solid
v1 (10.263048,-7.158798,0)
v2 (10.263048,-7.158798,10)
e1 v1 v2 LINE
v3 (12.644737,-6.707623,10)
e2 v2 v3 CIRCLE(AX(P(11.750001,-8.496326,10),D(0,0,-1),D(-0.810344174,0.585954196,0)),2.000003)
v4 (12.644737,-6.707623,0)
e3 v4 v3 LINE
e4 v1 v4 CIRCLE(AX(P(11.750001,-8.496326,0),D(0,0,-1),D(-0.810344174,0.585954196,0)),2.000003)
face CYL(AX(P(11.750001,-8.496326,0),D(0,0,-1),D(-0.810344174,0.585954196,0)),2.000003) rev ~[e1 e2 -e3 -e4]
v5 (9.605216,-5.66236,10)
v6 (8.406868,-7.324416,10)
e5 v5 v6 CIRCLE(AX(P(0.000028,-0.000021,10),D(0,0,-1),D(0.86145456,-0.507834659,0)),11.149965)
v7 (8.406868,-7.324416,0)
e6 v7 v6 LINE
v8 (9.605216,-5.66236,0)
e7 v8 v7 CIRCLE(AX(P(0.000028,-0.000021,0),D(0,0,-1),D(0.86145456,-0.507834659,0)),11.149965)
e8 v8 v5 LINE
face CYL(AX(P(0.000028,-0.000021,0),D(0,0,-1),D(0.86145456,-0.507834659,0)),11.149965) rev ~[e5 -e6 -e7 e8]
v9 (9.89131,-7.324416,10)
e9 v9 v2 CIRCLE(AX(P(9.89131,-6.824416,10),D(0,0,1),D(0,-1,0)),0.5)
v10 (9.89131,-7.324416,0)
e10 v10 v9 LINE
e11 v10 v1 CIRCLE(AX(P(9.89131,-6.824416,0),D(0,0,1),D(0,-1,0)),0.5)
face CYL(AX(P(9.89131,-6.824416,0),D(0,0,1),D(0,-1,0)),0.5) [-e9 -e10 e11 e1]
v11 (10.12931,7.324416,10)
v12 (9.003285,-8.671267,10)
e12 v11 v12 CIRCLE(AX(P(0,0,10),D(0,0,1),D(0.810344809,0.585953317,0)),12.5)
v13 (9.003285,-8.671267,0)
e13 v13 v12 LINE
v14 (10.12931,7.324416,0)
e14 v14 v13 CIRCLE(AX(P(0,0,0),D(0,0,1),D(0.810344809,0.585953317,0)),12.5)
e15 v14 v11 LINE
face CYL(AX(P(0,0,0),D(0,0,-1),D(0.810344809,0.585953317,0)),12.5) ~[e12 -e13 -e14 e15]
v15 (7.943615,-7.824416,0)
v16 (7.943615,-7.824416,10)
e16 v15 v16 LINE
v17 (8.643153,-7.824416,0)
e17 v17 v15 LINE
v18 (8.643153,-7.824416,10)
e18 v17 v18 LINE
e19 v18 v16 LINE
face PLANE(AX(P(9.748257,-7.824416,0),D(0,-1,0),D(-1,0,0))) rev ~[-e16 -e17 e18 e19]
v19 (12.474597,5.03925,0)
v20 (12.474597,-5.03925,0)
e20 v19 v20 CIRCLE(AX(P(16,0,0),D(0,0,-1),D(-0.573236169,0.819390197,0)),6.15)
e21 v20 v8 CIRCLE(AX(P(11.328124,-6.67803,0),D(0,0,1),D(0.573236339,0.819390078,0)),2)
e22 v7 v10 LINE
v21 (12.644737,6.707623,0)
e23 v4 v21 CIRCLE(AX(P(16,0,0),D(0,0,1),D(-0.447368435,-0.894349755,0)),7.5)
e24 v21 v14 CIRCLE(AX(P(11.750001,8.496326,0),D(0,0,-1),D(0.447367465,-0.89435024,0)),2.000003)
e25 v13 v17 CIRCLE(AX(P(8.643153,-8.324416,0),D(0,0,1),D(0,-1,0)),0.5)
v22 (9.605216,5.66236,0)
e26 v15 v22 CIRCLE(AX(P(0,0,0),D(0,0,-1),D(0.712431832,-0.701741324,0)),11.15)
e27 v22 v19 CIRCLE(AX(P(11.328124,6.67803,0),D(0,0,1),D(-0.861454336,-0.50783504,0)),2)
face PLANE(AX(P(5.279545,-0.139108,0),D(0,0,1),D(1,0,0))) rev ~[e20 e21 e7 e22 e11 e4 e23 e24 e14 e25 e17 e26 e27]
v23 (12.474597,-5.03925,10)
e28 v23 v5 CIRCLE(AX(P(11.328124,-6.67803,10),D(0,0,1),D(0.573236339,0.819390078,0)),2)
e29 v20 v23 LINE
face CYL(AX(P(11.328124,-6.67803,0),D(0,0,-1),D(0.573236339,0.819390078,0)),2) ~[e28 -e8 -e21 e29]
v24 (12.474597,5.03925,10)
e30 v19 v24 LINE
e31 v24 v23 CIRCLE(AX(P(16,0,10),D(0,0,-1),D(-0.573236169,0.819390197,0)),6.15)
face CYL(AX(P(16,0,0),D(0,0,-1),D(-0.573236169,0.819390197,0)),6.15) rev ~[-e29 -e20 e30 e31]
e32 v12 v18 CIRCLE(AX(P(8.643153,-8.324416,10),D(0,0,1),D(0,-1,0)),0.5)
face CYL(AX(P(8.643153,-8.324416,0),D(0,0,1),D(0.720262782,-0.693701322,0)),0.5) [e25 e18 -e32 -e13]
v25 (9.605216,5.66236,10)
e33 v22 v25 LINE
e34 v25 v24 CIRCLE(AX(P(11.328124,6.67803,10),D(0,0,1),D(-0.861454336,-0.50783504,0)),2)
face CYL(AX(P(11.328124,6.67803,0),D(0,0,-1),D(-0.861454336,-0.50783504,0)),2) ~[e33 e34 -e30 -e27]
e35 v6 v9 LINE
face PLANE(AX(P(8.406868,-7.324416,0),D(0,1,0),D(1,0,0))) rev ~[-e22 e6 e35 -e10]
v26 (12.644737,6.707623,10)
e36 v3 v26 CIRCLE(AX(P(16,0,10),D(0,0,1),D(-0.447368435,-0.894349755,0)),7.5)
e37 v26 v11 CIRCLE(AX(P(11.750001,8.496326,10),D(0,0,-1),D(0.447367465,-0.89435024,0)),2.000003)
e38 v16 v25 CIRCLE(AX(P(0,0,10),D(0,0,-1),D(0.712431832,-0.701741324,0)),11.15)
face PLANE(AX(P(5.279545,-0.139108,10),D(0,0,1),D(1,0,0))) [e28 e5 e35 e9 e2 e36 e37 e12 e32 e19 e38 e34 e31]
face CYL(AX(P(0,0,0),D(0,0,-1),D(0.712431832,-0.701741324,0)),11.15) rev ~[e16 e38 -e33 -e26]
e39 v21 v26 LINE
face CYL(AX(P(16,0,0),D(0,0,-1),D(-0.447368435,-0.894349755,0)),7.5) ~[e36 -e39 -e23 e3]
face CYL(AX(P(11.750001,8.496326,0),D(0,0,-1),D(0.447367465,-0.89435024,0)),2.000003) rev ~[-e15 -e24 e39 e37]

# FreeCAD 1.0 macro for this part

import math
import FreeCAD as App
import Part
import Sketcher

V = App.Vector


def edges_at(feature, points):
    """Names of the edges that pass closest to the given points."""
    edges = feature.Shape.Edges
    near = lambda p: min(range(len(edges)), key=lambda i: edges[i].distToShape(Part.Vertex(*p))[0])
    return sorted({f"Edge{near(p) + 1}" for p in points})

doc = App.newDocument("Part")
params = doc.addObject("Spreadsheet::Sheet", "Params")
for row, (alias, value) in enumerate([
    ("sketch1_radius", "2 mm"),
    ("sketch1_radius2", "12.5 mm"),
    ("sketch1_radius3", "7.5 mm"),
    ("sketch1_radius4", "11.15 mm"),
    ("sketch1_radius5", "6.15 mm"),
    ("pad1_length", "10 mm"),
    ("fillet_radius", "0.5 mm"),
], start=1):
    params.set(f"A{row}", alias)
    params.set(f"B{row}", "=" + value)
    params.setAlias(f"B{row}", alias)

body = doc.addObject("PartDesign::Body", "Body")

# Sketch on XY plane
sketch1 = body.newObject("Sketcher::SketchObject", "Sketch")
sketch1.AttachmentSupport = (doc.getObject("XY_Plane"), [""])
sketch1.MapMode = "FlatFace"
sketch1.addGeometry([
    Part.ArcOfCircle(Part.Circle(V(11.8, 8.5, 0), V(0, 0, 1), 2), math.radians(-144), math.radians(-63)),  # 0
    Part.ArcOfCircle(Part.Circle(V(0, 0, 0), V(0, 0, 1), 12.5), math.radians(36), math.radians(321)),  # 1
    Part.LineSegment(V(9.7, -7.8, 0), V(7.9, -7.8, 0)),  # 2
    Part.ArcOfCircle(Part.Circle(V(0, 0, 0), V(0, 0, 1), 11.1), math.radians(31), math.radians(315)),  # 3
    Part.ArcOfCircle(Part.Circle(V(11.3, 6.7, 0), V(0, 0, 1), 2), math.radians(-149), math.radians(-55)),  # 4
    Part.ArcOfCircle(Part.Circle(V(16, 0, 0), V(0, 0, 1), 6.2), math.radians(-125), math.radians(125)),  # 5
    Part.ArcOfCircle(Part.Circle(V(11.3, -6.7, 0), V(0, 0, 1), 2), math.radians(55), math.radians(149)),  # 6
    Part.ArcOfCircle(Part.Circle(V(0, 0, 0), V(0, 0, 1), 11.1), math.radians(-41.06), math.radians(-30.52)),  # 7
    Part.LineSegment(V(8.4, -7.3, 0), V(10.1, -7.3, 0)),  # 8
    Part.ArcOfCircle(Part.Circle(V(11.8, -8.5, 0), V(0, 0, 1), 2), math.radians(63), math.radians(144)),  # 9
    Part.ArcOfCircle(Part.Circle(V(16, 0, 0), V(0, 0, 1), 7.5), math.radians(-117), math.radians(117)),  # 10
], False)
sketch1.addConstraint([
    Sketcher.Constraint("Tangent", 0, 1, 1, 1),
    Sketcher.Constraint("Coincident", 1, 2, 2, 1),
    Sketcher.Constraint("Coincident", 2, 2, 3, 2),
    Sketcher.Constraint("Tangent", 3, 1, 4, 1),
    Sketcher.Constraint("Tangent", 4, 2, 5, 2),
    Sketcher.Constraint("Tangent", 5, 1, 6, 1),
    Sketcher.Constraint("Tangent", 6, 2, 7, 2),
    Sketcher.Constraint("Coincident", 7, 1, 8, 1),
    Sketcher.Constraint("Coincident", 8, 2, 9, 2),
    Sketcher.Constraint("Tangent", 9, 1, 10, 1),
    Sketcher.Constraint("Tangent", 10, 2, 0, 2),
    Sketcher.Constraint("Horizontal", 2),
    Sketcher.Constraint("Horizontal", 8),
    Sketcher.Constraint("Coincident", 1, 3, -1, 1),
    Sketcher.Constraint("Coincident", 3, 3, -1, 1),
    Sketcher.Constraint("Coincident", 10, 3, 5, 3),
    Sketcher.Constraint("Equal", 4, 6),
    Sketcher.Constraint("Equal", 0, 9),
    Sketcher.Constraint("Symmetric", 4, 3, 6, 3, -1),
    Sketcher.Constraint("Symmetric", 0, 1, 8, 2, -1),
    Sketcher.Constraint("Vertical", 3, 1, 6, 2),
    Sketcher.Constraint("Radius", 4, 2.0),
    Sketcher.Constraint("Radius", 1, 12.5),
    Sketcher.Constraint("Radius", 10, 7.5),
    Sketcher.Constraint("Radius", 3, 11.15),
    Sketcher.Constraint("Radius", 5, 6.15),
    Sketcher.Constraint("DistanceX", -1, 1, 5, 3, 16.0),
    Sketcher.Constraint("DistanceY", 2, 2, 7, 1, 0.5),
    Sketcher.Constraint("DistanceX", -1, 1, 0, 3, 11.750001),
    Sketcher.Constraint("Radius", 7, 11.149965),
])
sketch1.setExpression("Constraints[21]", "Params.sketch1_radius")
sketch1.setExpression("Constraints[22]", "Params.sketch1_radius2")
sketch1.setExpression("Constraints[23]", "Params.sketch1_radius3")
sketch1.setExpression("Constraints[24]", "Params.sketch1_radius4")
sketch1.setExpression("Constraints[25]", "Params.sketch1_radius5")
pad1 = body.newObject("PartDesign::Pad", "Pad")
pad1.Profile = sketch1
pad1.setExpression("Length", "Params.pad1_length")
doc.recompute()

fillet = body.newObject("PartDesign::Fillet", "Fillet")
fillet.Base = (pad1, edges_at(pad1, [(9.748, -7.824, 5), (10.129, -7.324, 5)]))
fillet.setExpression("Radius", "Params.fillet_radius")

doc.recompute()
